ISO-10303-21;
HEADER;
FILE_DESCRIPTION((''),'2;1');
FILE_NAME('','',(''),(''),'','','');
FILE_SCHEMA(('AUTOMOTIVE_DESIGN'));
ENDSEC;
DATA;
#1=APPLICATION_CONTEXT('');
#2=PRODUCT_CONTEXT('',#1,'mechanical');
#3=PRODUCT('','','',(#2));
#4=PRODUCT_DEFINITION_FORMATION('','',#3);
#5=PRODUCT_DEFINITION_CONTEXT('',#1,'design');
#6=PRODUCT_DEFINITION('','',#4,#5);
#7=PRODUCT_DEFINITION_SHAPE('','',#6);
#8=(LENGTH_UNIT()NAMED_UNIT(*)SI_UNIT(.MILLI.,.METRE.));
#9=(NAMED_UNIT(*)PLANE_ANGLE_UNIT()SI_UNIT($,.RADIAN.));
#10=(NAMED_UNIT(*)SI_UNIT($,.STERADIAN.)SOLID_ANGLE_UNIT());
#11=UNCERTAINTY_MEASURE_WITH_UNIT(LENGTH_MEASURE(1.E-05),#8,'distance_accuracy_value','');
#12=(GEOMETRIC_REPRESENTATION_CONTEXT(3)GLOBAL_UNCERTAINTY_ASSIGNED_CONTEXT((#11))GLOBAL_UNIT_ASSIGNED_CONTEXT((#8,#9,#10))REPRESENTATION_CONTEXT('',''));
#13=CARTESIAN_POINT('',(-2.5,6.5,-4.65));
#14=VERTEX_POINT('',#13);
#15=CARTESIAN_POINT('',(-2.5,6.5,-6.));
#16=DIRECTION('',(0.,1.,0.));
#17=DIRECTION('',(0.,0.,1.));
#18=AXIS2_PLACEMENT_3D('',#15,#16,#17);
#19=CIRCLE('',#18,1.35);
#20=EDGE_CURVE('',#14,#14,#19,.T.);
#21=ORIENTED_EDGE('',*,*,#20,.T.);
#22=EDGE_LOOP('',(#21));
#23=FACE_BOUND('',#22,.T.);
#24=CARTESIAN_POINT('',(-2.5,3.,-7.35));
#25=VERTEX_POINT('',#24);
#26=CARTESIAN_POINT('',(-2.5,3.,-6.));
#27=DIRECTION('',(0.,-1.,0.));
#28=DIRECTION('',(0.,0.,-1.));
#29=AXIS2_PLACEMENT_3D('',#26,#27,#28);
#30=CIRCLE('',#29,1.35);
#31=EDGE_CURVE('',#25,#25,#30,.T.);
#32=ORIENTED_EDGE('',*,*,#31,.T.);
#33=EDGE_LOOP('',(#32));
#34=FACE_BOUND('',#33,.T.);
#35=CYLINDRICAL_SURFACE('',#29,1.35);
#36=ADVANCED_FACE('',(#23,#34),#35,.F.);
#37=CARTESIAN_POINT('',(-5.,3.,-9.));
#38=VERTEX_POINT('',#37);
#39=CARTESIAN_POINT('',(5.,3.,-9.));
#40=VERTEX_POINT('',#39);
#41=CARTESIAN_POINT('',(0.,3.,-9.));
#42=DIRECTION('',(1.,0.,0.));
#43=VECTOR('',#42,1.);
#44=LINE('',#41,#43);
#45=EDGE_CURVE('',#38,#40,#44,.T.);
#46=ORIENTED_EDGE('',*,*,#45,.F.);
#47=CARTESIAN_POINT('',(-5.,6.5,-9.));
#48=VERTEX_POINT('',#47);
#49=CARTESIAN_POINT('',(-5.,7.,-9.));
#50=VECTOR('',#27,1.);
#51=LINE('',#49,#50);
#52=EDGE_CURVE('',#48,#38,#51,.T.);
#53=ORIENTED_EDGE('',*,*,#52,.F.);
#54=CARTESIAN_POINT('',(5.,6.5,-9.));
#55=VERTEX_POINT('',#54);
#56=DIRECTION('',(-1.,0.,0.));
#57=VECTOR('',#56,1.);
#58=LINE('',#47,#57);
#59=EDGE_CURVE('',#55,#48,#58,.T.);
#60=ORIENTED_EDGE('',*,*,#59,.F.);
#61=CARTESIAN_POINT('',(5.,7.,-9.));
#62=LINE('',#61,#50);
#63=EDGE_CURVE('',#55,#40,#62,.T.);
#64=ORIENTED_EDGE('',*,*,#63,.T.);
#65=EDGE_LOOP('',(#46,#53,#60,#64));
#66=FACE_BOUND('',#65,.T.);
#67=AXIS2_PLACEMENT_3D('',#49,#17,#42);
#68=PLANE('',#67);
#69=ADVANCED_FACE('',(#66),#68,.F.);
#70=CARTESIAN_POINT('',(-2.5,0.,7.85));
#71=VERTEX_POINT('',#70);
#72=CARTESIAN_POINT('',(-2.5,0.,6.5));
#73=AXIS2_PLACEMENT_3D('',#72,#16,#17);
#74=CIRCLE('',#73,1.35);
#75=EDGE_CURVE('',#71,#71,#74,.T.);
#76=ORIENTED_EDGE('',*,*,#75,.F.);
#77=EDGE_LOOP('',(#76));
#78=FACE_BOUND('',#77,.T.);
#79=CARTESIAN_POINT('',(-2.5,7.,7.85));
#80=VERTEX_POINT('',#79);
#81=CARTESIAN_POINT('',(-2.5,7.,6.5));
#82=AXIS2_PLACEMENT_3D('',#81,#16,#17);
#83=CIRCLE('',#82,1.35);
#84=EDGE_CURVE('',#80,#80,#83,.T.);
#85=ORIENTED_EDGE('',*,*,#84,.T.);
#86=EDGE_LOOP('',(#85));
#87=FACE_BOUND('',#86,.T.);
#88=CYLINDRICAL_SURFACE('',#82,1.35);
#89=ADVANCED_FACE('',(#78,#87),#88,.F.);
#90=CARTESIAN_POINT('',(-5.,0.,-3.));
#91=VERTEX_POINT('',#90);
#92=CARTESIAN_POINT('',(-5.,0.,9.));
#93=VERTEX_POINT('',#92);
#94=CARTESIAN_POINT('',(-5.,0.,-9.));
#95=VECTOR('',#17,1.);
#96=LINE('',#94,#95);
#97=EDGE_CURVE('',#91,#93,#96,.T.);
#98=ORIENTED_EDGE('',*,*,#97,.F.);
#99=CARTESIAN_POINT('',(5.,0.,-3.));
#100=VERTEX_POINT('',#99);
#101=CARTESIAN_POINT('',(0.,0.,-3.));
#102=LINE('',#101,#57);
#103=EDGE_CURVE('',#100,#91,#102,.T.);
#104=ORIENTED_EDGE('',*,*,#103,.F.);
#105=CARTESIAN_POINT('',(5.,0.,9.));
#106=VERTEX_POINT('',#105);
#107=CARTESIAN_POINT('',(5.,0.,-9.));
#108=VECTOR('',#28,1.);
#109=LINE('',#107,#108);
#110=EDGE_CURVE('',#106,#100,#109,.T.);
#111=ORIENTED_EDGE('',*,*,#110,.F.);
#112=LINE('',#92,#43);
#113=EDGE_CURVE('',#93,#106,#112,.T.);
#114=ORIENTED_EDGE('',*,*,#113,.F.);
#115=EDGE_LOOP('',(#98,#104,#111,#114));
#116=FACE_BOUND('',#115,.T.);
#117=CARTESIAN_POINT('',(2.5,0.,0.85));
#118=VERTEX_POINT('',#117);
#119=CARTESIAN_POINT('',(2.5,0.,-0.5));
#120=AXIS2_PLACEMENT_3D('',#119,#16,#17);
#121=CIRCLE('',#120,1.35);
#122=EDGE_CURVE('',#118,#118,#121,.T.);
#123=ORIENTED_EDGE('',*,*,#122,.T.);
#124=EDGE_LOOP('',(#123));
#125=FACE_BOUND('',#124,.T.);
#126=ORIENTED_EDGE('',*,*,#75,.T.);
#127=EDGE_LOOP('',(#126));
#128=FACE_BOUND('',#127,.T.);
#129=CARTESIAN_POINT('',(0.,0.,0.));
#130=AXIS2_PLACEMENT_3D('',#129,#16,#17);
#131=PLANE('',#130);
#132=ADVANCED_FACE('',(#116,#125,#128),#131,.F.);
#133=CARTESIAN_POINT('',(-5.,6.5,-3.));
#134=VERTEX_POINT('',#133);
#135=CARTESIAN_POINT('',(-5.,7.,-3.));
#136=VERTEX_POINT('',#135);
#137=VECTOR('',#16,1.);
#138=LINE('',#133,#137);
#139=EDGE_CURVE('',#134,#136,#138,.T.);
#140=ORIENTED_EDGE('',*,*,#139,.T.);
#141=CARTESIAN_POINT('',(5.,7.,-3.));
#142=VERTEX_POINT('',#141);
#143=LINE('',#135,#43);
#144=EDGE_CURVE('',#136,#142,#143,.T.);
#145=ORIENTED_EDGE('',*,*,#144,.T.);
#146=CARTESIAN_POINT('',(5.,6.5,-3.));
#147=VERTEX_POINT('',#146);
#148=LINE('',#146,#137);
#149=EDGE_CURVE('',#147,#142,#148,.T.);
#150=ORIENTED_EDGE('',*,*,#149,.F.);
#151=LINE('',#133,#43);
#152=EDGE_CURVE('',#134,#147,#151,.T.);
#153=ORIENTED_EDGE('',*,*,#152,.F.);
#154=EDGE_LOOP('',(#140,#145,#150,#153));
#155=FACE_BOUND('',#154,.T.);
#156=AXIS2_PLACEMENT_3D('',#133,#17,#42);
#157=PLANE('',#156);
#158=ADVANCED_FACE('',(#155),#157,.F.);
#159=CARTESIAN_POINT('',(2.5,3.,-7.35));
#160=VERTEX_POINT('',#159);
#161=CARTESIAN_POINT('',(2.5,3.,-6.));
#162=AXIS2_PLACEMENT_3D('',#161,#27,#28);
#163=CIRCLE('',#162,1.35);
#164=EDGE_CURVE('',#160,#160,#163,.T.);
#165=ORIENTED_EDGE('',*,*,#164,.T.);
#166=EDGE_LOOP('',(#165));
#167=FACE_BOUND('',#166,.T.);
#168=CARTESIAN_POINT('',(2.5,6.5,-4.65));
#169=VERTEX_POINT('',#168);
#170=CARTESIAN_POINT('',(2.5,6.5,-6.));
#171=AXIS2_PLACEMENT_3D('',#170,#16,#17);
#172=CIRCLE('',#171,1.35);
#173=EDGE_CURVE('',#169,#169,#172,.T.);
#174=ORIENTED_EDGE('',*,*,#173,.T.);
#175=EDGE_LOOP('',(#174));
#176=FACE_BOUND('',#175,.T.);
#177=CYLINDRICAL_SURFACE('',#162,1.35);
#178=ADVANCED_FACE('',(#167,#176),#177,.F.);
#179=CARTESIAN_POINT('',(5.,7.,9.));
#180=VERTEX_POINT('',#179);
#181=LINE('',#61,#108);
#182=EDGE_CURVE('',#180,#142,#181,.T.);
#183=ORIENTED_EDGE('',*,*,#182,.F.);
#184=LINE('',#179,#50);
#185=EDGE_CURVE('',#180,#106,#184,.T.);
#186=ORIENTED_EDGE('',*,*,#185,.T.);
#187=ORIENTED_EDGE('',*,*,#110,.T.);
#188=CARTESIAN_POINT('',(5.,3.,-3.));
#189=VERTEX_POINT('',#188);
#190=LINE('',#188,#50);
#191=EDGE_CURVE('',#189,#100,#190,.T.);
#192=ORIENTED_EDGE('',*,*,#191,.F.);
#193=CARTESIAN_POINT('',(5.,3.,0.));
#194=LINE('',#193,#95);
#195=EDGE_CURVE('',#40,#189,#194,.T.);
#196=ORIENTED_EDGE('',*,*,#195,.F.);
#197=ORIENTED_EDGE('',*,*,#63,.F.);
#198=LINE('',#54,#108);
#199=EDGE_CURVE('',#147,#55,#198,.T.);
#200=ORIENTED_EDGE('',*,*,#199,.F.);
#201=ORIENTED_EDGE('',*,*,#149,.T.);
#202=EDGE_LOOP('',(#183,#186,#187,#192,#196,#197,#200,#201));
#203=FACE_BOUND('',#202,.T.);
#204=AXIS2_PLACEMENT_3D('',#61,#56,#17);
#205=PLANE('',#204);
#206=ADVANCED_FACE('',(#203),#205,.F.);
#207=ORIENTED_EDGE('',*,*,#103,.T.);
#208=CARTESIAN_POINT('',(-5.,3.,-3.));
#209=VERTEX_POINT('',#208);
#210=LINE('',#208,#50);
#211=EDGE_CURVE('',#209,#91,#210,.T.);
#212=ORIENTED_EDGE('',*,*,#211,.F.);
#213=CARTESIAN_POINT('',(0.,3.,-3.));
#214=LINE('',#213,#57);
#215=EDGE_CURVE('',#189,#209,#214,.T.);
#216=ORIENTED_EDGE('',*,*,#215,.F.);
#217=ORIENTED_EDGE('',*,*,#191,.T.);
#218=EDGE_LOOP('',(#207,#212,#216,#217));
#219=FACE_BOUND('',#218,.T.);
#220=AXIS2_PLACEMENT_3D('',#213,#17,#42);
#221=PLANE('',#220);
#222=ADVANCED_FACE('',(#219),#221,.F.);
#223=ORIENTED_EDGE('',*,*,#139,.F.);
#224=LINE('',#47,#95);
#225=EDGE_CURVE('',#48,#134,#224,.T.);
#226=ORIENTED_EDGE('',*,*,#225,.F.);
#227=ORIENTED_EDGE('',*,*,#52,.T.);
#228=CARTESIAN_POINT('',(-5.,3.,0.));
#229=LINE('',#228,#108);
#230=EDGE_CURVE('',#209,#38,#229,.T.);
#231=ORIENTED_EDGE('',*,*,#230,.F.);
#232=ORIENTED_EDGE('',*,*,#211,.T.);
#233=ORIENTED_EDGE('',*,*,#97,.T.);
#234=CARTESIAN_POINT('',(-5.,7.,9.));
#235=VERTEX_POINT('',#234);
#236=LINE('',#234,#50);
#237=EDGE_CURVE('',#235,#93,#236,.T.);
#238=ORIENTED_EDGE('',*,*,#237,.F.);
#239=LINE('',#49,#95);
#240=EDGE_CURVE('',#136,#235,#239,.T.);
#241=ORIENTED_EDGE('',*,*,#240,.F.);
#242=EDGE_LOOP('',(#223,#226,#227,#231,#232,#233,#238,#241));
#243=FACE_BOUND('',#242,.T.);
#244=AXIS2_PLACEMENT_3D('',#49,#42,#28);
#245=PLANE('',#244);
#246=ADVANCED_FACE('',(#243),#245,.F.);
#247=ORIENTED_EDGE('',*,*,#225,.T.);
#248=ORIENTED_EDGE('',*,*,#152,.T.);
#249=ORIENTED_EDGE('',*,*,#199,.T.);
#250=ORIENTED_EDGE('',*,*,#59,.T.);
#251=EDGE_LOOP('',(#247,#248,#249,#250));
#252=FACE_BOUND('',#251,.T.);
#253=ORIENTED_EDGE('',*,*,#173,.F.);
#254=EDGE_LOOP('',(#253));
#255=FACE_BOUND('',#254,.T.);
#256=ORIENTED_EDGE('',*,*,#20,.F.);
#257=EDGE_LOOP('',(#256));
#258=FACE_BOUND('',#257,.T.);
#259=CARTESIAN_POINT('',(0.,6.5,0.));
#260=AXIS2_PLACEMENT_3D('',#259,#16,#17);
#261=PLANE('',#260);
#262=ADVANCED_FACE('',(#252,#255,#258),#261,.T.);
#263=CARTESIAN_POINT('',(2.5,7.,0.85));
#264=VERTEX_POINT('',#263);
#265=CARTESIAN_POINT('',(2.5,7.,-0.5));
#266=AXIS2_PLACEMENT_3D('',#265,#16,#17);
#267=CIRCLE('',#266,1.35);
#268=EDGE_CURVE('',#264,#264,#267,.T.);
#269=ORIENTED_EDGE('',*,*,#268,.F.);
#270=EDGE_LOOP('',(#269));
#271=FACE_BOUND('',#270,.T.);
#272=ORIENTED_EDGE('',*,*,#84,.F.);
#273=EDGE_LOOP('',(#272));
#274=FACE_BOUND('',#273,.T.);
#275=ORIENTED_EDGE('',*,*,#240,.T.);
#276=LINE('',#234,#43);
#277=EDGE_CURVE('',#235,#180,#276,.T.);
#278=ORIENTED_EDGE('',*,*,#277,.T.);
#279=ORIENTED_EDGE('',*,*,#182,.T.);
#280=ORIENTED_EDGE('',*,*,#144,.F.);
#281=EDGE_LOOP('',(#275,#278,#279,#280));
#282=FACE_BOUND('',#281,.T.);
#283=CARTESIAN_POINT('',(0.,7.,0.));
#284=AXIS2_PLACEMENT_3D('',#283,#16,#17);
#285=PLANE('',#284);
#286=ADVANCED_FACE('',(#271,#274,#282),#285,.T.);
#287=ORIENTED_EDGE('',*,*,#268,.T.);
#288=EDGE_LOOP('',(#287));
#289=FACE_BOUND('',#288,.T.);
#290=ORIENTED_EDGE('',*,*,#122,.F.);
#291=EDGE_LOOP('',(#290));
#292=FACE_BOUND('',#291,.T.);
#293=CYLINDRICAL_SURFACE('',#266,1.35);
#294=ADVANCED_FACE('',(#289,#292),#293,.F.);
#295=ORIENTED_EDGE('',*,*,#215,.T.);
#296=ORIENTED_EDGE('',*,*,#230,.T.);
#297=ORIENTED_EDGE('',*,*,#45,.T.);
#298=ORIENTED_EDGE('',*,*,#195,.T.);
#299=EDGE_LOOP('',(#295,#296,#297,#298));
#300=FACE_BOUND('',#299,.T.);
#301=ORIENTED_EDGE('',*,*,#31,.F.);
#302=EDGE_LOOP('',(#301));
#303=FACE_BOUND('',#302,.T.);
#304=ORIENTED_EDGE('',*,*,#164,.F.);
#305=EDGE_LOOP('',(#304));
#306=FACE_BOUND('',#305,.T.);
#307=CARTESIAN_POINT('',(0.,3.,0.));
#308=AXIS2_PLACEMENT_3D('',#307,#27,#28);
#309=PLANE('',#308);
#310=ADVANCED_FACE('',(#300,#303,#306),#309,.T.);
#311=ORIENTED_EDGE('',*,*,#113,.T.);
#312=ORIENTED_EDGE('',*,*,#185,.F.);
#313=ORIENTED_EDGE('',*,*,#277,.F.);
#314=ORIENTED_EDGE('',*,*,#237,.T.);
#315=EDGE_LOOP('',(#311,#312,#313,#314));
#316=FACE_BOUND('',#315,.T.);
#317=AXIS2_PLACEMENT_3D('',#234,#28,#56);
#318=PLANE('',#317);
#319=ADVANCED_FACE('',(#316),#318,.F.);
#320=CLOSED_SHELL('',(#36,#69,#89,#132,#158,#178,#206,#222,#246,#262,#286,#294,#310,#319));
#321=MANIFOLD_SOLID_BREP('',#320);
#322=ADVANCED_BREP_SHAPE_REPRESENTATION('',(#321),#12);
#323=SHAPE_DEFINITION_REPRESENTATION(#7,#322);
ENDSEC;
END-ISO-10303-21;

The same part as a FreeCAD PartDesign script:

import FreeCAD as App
import Part
import Sketcher
Q = App.Units.Quantity


def add_polygon(sketch, points):
    """Adds a closed chain of lines whose ends are joined by coincident constraints."""
    first, n = sketch.GeometryCount, len(points)
    for a, b in zip(points, points[1:] + points[:1]):
        sketch.addGeometry(Part.LineSegment(App.Vector(*a, 0), App.Vector(*b, 0)), False)
    for i in range(n):
        sketch.addConstraint(Sketcher.Constraint("Coincident", first + i, 2, first + (i + 1) % n, 1))

doc = App.newDocument("Part")
body = doc.addObject("PartDesign::Body", "Body")

sketch1 = body.newObject("Sketcher::SketchObject", "Sketch")
sketch1.AttachmentSupport = (doc.getObject("XZ_Plane"), [""])
sketch1.MapMode = "FlatFace"
add_polygon(sketch1, [(-5, -9), (-5, 9), (5, 9), (5, -9)])
sketch1.addConstraint(Sketcher.Constraint("Vertical", 0))
sketch1.addConstraint(Sketcher.Constraint("Horizontal", 1))
sketch1.addConstraint(Sketcher.Constraint("Vertical", 2))
sketch1.addConstraint(Sketcher.Constraint("Horizontal", 3))
sketch1.addConstraint(Sketcher.Constraint("Symmetric", 0, 2, 2, 2, -1, 1))
sketch1.addConstraint(Sketcher.Constraint("DistanceX", 1, 1, 1, 2, Q("10 mm")))
sketch1.addConstraint(Sketcher.Constraint("DistanceY", 0, 1, 0, 2, Q("18 mm")))
pad1 = body.newObject("PartDesign::Pad", "Pad")
pad1.Profile = sketch1
pad1.Length = 7
pad1.Reversed = True

sketch2 = body.newObject("Sketcher::SketchObject", "Sketch001")
sketch2.AttachmentSupport = (doc.getObject("XZ_Plane"), [""])
sketch2.MapMode = "FlatFace"
sketch2.AttachmentOffset = App.Placement(App.Vector(0, 0, -7), App.Rotation())
add_polygon(sketch2, [(-5, -9), (-5, -3), (5, -3), (5, -9)])
sketch2.addConstraint(Sketcher.Constraint("Vertical", 0))
sketch2.addConstraint(Sketcher.Constraint("Horizontal", 1))
sketch2.addConstraint(Sketcher.Constraint("Vertical", 2))
sketch2.addConstraint(Sketcher.Constraint("Horizontal", 3))
sketch2.addConstraint(Sketcher.Constraint("DistanceX", 1, 1, 1, 2, Q("10 mm")))
sketch2.addConstraint(Sketcher.Constraint("DistanceY", 0, 1, 0, 2, Q("6 mm")))
sketch2.addConstraint(Sketcher.Constraint("DistanceX", 0, 2, -1, 1, Q("5 mm")))
sketch2.addConstraint(Sketcher.Constraint("DistanceY", 0, 2, -1, 1, Q("3 mm")))
pocket1 = body.newObject("PartDesign::Pocket", "Pocket")
pocket1.Profile = sketch2
pocket1.Length = 0.5
pocket1.Reversed = True

sketch3 = body.newObject("Sketcher::SketchObject", "Sketch002")
sketch3.AttachmentSupport = (doc.getObject("XZ_Plane"), [""])
sketch3.MapMode = "FlatFace"
sketch3.AttachmentOffset = App.Placement(App.Vector(0, 0, -7), App.Rotation())
sketch3.addGeometry(Part.Circle(App.Vector(-2.5, 6.5, 0), App.Vector(0, 0, 1), 1.4), False)
sketch3.addGeometry(Part.Circle(App.Vector(2.5, -0.5, 0), App.Vector(0, 0, 1), 1.4), False)
sketch3.addConstraint(Sketcher.Constraint("Equal", 0, 1))
sketch3.addConstraint(Sketcher.Constraint("Diameter", 0, Q("2.7 mm")))
sketch3.addConstraint(Sketcher.Constraint("DistanceX", 0, 3, 1, 3, Q("5 mm")))
sketch3.addConstraint(Sketcher.Constraint("DistanceY", 1, 3, 0, 3, Q("7 mm")))
sketch3.addConstraint(Sketcher.Constraint("DistanceX", 0, 3, -1, 1, Q("2.5 mm")))
sketch3.addConstraint(Sketcher.Constraint("DistanceY", -1, 1, 0, 3, Q("6.5 mm")))
doc.recompute()
hole = body.newObject("PartDesign::Hole", "Hole")
hole.Profile = sketch3
hole.ThreadType = "None"
hole.Diameter = 2.7
hole.DepthType = "ThroughAll"
hole.Reversed = True

sketch4 = body.newObject("Sketcher::SketchObject", "Sketch003")
sketch4.AttachmentSupport = (doc.getObject("XZ_Plane"), [""])
sketch4.MapMode = "FlatFace"
add_polygon(sketch4, [(-5, -3), (-5, -9), (5, -9), (5, -3)])
sketch4.addConstraint(Sketcher.Constraint("Vertical", 0))
sketch4.addConstraint(Sketcher.Constraint("Horizontal", 1))
sketch4.addConstraint(Sketcher.Constraint("Vertical", 2))
sketch4.addConstraint(Sketcher.Constraint("Horizontal", 3))
sketch4.addConstraint(Sketcher.Constraint("DistanceX", 1, 1, 1, 2, Q("10 mm")))
sketch4.addConstraint(Sketcher.Constraint("DistanceY", 0, 2, 0, 1, Q("6 mm")))
sketch4.addConstraint(Sketcher.Constraint("DistanceX", 0, 2, -1, 1, Q("5 mm")))
sketch4.addConstraint(Sketcher.Constraint("DistanceY", 0, 2, -1, 1, Q("9 mm")))
pocket2 = body.newObject("PartDesign::Pocket", "Pocket001")
pocket2.Profile = sketch4
pocket2.Length = 3

sketch5 = body.newObject("Sketcher::SketchObject", "Sketch004")
sketch5.AttachmentSupport = (doc.getObject("XZ_Plane"), [""])
sketch5.MapMode = "FlatFace"
sketch5.AttachmentOffset = App.Placement(App.Vector(0, 0, -3), App.Rotation())
sketch5.addGeometry(Part.Circle(App.Vector(2.5, -6, 0), App.Vector(0, 0, 1), 1.4), False)
sketch5.addGeometry(Part.Circle(App.Vector(-2.5, -6, 0), App.Vector(0, 0, 1), 1.4), False)
sketch5.addConstraint(Sketcher.Constraint("Equal", 0, 1))
sketch5.addConstraint(Sketcher.Constraint("Symmetric", 0, 3, 1, 3, -2))
sketch5.addConstraint(Sketcher.Constraint("Diameter", 0, Q("2.7 mm")))
sketch5.addConstraint(Sketcher.Constraint("DistanceY", 0, 3, -1, 1, Q("6 mm")))
sketch5.addConstraint(Sketcher.Constraint("DistanceX", 1, 3, 0, 3, Q("5 mm")))
doc.recompute()
hole2 = body.newObject("PartDesign::Hole", "Hole001")
hole2.Profile = sketch5
hole2.ThreadType = "None"
hole2.Diameter = 2.7
hole2.DepthType = "ThroughAll"

doc.recompute()
